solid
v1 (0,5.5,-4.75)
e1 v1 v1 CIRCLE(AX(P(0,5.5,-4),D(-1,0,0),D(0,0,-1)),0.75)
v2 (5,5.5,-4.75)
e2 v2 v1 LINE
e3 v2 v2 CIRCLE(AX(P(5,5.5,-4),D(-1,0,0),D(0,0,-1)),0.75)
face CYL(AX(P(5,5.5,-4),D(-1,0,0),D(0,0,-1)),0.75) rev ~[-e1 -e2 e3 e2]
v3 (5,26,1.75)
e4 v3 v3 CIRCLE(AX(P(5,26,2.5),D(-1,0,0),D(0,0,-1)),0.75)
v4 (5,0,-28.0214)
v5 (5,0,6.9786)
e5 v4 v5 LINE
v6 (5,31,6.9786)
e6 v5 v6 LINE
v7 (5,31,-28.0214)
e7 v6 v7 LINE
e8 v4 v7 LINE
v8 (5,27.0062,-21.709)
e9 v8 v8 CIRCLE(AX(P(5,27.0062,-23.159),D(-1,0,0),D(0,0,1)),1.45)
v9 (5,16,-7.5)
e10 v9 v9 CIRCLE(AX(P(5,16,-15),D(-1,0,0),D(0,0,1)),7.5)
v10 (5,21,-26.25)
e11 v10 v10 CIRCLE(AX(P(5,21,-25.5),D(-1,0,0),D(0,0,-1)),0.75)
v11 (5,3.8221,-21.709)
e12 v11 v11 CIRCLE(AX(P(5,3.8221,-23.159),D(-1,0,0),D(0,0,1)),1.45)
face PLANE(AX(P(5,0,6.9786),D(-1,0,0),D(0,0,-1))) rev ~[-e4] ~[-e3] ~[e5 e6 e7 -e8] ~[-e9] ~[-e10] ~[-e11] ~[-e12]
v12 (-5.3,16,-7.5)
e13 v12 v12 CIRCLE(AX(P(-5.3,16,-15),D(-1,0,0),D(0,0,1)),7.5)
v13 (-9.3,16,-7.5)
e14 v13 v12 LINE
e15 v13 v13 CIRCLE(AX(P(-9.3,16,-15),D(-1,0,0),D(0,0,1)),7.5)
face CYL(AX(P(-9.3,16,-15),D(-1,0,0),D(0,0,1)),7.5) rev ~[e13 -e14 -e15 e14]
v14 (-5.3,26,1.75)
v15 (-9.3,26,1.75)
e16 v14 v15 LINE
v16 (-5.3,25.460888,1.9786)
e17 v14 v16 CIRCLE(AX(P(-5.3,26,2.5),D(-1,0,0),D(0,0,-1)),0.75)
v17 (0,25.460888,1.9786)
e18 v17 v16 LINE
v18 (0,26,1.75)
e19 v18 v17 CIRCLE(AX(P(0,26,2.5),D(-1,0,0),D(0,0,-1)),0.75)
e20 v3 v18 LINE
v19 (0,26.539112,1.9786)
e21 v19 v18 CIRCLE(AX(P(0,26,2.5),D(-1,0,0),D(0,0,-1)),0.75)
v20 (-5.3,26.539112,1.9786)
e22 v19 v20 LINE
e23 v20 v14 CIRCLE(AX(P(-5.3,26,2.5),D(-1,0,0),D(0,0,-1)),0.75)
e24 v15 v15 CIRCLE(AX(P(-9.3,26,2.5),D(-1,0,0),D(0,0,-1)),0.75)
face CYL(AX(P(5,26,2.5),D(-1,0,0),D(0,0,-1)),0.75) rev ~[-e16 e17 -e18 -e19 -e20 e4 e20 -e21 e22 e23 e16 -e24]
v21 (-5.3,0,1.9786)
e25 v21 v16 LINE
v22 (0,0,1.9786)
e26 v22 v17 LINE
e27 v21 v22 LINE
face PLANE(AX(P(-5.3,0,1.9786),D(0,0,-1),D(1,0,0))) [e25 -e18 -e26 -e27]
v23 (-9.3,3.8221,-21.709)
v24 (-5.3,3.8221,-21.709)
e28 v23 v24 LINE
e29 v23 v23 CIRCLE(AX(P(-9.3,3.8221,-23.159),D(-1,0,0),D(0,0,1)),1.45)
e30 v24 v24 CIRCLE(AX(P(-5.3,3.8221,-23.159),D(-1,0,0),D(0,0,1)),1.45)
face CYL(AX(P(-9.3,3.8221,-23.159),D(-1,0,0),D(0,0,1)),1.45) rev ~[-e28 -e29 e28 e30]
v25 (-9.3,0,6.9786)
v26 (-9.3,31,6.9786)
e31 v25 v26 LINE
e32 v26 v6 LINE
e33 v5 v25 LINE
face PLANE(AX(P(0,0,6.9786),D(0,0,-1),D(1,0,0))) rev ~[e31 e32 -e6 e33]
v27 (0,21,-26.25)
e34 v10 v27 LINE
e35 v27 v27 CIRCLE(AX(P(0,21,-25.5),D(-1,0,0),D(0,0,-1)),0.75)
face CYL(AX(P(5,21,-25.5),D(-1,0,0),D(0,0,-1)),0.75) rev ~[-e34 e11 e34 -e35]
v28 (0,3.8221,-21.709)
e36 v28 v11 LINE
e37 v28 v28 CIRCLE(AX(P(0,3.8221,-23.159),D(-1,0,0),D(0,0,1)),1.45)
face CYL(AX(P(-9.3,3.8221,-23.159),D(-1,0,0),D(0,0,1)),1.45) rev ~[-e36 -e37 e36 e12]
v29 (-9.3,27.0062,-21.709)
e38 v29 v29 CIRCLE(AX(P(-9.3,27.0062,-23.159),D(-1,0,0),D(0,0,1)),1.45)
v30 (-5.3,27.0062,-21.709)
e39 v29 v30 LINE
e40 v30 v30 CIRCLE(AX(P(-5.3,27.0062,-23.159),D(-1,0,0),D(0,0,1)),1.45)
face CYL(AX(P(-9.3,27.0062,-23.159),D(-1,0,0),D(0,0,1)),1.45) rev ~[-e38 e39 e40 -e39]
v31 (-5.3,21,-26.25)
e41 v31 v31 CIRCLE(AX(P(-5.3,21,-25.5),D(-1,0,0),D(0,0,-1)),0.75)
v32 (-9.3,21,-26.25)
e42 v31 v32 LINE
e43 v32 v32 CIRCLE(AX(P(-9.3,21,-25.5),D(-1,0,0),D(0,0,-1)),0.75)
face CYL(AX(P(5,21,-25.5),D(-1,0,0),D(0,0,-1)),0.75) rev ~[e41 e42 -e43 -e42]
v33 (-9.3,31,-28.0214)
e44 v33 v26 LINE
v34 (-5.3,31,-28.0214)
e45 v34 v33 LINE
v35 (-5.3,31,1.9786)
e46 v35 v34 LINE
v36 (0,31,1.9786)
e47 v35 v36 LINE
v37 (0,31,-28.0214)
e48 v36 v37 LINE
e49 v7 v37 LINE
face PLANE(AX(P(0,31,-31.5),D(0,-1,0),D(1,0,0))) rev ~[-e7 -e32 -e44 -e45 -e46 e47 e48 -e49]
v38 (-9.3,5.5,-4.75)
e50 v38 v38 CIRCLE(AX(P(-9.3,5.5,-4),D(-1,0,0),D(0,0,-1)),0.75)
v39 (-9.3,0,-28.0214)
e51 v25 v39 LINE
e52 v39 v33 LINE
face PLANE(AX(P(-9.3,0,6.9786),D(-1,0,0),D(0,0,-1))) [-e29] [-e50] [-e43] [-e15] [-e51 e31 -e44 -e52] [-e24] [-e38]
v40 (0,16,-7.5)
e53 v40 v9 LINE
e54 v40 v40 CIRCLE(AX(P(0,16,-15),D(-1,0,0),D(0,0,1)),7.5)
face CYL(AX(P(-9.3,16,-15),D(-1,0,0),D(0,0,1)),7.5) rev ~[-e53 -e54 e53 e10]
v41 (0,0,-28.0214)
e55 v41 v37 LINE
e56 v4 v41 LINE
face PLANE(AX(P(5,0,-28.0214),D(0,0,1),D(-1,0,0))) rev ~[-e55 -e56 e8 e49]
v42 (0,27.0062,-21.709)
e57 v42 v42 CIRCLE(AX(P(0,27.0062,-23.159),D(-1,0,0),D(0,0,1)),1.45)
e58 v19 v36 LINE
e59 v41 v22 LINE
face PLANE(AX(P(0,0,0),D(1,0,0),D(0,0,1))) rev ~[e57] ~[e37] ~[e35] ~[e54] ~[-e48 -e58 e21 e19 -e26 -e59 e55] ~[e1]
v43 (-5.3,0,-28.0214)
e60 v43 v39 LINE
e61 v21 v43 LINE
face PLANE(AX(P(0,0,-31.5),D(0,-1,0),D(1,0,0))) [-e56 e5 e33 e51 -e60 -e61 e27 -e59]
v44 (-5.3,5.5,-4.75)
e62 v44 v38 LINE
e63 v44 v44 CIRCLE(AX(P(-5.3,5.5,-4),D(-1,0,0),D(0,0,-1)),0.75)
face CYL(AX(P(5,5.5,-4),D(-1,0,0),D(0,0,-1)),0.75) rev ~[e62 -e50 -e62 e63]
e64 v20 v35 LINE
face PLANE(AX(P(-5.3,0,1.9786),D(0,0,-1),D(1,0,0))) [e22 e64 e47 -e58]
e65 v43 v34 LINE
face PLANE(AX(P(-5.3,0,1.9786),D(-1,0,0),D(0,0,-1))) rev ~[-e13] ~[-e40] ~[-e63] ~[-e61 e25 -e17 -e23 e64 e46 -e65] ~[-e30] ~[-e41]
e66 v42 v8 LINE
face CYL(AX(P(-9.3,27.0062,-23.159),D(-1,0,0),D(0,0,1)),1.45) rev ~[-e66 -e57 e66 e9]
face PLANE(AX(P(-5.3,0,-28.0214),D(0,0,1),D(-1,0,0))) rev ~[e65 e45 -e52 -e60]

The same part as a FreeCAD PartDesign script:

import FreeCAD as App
import Part
import Sketcher

V = App.Vector


def add_polygon(sketch, points):
    """Adds a closed chain of lines whose ends are joined by coincident constraints."""
    first, n = sketch.GeometryCount, len(points)
    for a, b in zip(points, points[1:] + points[:1]):
        sketch.addGeometry(Part.LineSegment(App.Vector(*a, 0), App.Vector(*b, 0)), False)
    for i in range(n):
        sketch.addConstraint(Sketcher.Constraint("Coincident", first + i, 2, first + (i + 1) % n, 1))

doc = App.newDocument("Part")
body = doc.addObject("PartDesign::Body", "Body")

sketch1 = doc.addObject("Sketcher::SketchObject", "Sketch")
body.addObject(sketch1)
sketch1.AttachmentSupport = (doc.XZ_Plane, [""])
sketch1.MapMode = "FlatFace"
add_polygon(sketch1, [(0, 2), (0, -28), (5, -28), (5, 7), (-9.3, 7), (-9.3, -28), (-5.3, -28), (-5.3, 2)])
sketch1.addConstraint(Sketcher.Constraint("Vertical", 0))
sketch1.addConstraint(Sketcher.Constraint("Horizontal", 1))
sketch1.addConstraint(Sketcher.Constraint("Vertical", 2))
sketch1.addConstraint(Sketcher.Constraint("Horizontal", 3))
sketch1.addConstraint(Sketcher.Constraint("Vertical", 4))
sketch1.addConstraint(Sketcher.Constraint("Horizontal", 5))
sketch1.addConstraint(Sketcher.Constraint("Vertical", 6))
sketch1.addConstraint(Sketcher.Constraint("Horizontal", 7))
sketch1.addConstraint(Sketcher.Constraint("PointOnObject", 0, 2, -2))
sketch1.addConstraint(Sketcher.Constraint("Horizontal", 1, 2, 4, 2))
sketch1.addConstraint(Sketcher.Constraint("DistanceX", 1, 1, 1, 2, 5.0))
sketch1.addConstraint(Sketcher.Constraint("DistanceX", 5, 1, 5, 2, 4.0))
sketch1.addConstraint(Sketcher.Constraint("DistanceY", 2, 1, 2, 2, 35.0))
sketch1.addConstraint(Sketcher.Constraint("DistanceY", 6, 2, 3, 2, 5.0))
sketch1.addConstraint(Sketcher.Constraint("DistanceX", 3, 2, 3, 1, 14.3))
sketch1.addConstraint(Sketcher.Constraint("DistanceY", 0, 2, -1, 1, 28.0214))
pad1 = doc.addObject("PartDesign::Pad", "Pad")
body.addObject(pad1)
pad1.Profile = sketch1
pad1.Length = 31
pad1.Reversed = True

sketch2 = doc.addObject("Sketcher::SketchObject", "Sketch001")
body.addObject(sketch2)
sketch2.AttachmentSupport = (doc.YZ_Plane, [""])
sketch2.MapMode = "FlatFace"
sketch2.AttachmentOffset = App.Placement(V(0, 0, -9.3), App.Rotation())
sketch2.addGeometry(Part.Circle(V(16, -15, 0), V(0, 0, 1), 8), False)
sketch2.addConstraint(Sketcher.Constraint("Diameter", 0, 15.0))
sketch2.addConstraint(Sketcher.Constraint("DistanceY", 0, 3, -1, 1, 15.0))
sketch2.addConstraint(Sketcher.Constraint("DistanceX", -1, 1, 0, 3, 16.0))
pocket1 = doc.addObject("PartDesign::Pocket", "Pocket")
body.addObject(pocket1)
pocket1.Profile = sketch2
pocket1.Type = "ThroughAll"
pocket1.Reversed = True

sketch3 = doc.addObject("Sketcher::SketchObject", "Sketch002")
body.addObject(sketch3)
sketch3.AttachmentSupport = (doc.YZ_Plane, [""])
sketch3.MapMode = "FlatFace"
sketch3.AttachmentOffset = App.Placement(V(0, 0, 5), App.Rotation())
sketch3.addGeometry(Part.Circle(V(5.5, -4, 0), V(0, 0, 1), 0.8), False)
sketch3.addGeometry(Part.Circle(V(26, 2.5, 0), V(0, 0, 1), 0.8), False)
sketch3.addGeometry(Part.Circle(V(21, -25.5, 0), V(0, 0, 1), 0.8), False)
sketch3.addConstraint(Sketcher.Constraint("Equal", 0, 1))
sketch3.addConstraint(Sketcher.Constraint("Equal", 1, 2))
sketch3.addConstraint(Sketcher.Constraint("Diameter", 0, 1.5))
sketch3.addConstraint(Sketcher.Constraint("DistanceY", 0, 3, -1, 1, 4.0))
sketch3.addConstraint(Sketcher.Constraint("DistanceX", -1, 1, 1, 3, 26.0))
sketch3.addConstraint(Sketcher.Constraint("DistanceX", -1, 1, 2, 3, 21.0))
sketch3.addConstraint(Sketcher.Constraint("DistanceY", 2, 3, 1, 3, 28.0))
sketch3.addConstraint(Sketcher.Constraint("DistanceX", -1, 1, 0, 3, 5.5))
sketch3.addConstraint(Sketcher.Constraint("DistanceY", -1, 1, 1, 3, 2.5))
doc.recompute()
hole = doc.addObject("PartDesign::Hole", "Hole")
body.addObject(hole)
hole.Profile = sketch3
hole.ThreadType = "None"
hole.Diameter = 1.5
hole.DepthType = "ThroughAll"

sketch4 = doc.addObject("Sketcher::SketchObject", "Sketch003")
body.addObject(sketch4)
sketch4.AttachmentSupport = (doc.YZ_Plane, [""])
sketch4.MapMode = "FlatFace"
sketch4.AttachmentOffset = App.Placement(V(0, 0, -9.3), App.Rotation())
sketch4.addGeometry(Part.Circle(V(3.8, -23.2, 0), V(0, 0, 1), 1.4), False)
sketch4.addGeometry(Part.Circle(V(27, -23.2, 0), V(0, 0, 1), 1.4), False)
sketch4.addConstraint(Sketcher.Constraint("Equal", 0, 1))
sketch4.addConstraint(Sketcher.Constraint("Horizontal", 0, 3, 1, 3))
sketch4.addConstraint(Sketcher.Constraint("Diameter", 0, 2.9))
sketch4.addConstraint(Sketcher.Constraint("DistanceX", -1, 1, 0, 3, 3.822))
sketch4.addConstraint(Sketcher.Constraint("DistanceY", 0, 3, -1, 1, 23.159))
sketch4.addConstraint(Sketcher.Constraint("DistanceX", 0, 3, 1, 3, 23.184))
pocket2 = doc.addObject("PartDesign::Pocket", "Pocket001")
body.addObject(pocket2)
pocket2.Profile = sketch4
pocket2.Type = "ThroughAll"
pocket2.Reversed = True

doc.recompute()
